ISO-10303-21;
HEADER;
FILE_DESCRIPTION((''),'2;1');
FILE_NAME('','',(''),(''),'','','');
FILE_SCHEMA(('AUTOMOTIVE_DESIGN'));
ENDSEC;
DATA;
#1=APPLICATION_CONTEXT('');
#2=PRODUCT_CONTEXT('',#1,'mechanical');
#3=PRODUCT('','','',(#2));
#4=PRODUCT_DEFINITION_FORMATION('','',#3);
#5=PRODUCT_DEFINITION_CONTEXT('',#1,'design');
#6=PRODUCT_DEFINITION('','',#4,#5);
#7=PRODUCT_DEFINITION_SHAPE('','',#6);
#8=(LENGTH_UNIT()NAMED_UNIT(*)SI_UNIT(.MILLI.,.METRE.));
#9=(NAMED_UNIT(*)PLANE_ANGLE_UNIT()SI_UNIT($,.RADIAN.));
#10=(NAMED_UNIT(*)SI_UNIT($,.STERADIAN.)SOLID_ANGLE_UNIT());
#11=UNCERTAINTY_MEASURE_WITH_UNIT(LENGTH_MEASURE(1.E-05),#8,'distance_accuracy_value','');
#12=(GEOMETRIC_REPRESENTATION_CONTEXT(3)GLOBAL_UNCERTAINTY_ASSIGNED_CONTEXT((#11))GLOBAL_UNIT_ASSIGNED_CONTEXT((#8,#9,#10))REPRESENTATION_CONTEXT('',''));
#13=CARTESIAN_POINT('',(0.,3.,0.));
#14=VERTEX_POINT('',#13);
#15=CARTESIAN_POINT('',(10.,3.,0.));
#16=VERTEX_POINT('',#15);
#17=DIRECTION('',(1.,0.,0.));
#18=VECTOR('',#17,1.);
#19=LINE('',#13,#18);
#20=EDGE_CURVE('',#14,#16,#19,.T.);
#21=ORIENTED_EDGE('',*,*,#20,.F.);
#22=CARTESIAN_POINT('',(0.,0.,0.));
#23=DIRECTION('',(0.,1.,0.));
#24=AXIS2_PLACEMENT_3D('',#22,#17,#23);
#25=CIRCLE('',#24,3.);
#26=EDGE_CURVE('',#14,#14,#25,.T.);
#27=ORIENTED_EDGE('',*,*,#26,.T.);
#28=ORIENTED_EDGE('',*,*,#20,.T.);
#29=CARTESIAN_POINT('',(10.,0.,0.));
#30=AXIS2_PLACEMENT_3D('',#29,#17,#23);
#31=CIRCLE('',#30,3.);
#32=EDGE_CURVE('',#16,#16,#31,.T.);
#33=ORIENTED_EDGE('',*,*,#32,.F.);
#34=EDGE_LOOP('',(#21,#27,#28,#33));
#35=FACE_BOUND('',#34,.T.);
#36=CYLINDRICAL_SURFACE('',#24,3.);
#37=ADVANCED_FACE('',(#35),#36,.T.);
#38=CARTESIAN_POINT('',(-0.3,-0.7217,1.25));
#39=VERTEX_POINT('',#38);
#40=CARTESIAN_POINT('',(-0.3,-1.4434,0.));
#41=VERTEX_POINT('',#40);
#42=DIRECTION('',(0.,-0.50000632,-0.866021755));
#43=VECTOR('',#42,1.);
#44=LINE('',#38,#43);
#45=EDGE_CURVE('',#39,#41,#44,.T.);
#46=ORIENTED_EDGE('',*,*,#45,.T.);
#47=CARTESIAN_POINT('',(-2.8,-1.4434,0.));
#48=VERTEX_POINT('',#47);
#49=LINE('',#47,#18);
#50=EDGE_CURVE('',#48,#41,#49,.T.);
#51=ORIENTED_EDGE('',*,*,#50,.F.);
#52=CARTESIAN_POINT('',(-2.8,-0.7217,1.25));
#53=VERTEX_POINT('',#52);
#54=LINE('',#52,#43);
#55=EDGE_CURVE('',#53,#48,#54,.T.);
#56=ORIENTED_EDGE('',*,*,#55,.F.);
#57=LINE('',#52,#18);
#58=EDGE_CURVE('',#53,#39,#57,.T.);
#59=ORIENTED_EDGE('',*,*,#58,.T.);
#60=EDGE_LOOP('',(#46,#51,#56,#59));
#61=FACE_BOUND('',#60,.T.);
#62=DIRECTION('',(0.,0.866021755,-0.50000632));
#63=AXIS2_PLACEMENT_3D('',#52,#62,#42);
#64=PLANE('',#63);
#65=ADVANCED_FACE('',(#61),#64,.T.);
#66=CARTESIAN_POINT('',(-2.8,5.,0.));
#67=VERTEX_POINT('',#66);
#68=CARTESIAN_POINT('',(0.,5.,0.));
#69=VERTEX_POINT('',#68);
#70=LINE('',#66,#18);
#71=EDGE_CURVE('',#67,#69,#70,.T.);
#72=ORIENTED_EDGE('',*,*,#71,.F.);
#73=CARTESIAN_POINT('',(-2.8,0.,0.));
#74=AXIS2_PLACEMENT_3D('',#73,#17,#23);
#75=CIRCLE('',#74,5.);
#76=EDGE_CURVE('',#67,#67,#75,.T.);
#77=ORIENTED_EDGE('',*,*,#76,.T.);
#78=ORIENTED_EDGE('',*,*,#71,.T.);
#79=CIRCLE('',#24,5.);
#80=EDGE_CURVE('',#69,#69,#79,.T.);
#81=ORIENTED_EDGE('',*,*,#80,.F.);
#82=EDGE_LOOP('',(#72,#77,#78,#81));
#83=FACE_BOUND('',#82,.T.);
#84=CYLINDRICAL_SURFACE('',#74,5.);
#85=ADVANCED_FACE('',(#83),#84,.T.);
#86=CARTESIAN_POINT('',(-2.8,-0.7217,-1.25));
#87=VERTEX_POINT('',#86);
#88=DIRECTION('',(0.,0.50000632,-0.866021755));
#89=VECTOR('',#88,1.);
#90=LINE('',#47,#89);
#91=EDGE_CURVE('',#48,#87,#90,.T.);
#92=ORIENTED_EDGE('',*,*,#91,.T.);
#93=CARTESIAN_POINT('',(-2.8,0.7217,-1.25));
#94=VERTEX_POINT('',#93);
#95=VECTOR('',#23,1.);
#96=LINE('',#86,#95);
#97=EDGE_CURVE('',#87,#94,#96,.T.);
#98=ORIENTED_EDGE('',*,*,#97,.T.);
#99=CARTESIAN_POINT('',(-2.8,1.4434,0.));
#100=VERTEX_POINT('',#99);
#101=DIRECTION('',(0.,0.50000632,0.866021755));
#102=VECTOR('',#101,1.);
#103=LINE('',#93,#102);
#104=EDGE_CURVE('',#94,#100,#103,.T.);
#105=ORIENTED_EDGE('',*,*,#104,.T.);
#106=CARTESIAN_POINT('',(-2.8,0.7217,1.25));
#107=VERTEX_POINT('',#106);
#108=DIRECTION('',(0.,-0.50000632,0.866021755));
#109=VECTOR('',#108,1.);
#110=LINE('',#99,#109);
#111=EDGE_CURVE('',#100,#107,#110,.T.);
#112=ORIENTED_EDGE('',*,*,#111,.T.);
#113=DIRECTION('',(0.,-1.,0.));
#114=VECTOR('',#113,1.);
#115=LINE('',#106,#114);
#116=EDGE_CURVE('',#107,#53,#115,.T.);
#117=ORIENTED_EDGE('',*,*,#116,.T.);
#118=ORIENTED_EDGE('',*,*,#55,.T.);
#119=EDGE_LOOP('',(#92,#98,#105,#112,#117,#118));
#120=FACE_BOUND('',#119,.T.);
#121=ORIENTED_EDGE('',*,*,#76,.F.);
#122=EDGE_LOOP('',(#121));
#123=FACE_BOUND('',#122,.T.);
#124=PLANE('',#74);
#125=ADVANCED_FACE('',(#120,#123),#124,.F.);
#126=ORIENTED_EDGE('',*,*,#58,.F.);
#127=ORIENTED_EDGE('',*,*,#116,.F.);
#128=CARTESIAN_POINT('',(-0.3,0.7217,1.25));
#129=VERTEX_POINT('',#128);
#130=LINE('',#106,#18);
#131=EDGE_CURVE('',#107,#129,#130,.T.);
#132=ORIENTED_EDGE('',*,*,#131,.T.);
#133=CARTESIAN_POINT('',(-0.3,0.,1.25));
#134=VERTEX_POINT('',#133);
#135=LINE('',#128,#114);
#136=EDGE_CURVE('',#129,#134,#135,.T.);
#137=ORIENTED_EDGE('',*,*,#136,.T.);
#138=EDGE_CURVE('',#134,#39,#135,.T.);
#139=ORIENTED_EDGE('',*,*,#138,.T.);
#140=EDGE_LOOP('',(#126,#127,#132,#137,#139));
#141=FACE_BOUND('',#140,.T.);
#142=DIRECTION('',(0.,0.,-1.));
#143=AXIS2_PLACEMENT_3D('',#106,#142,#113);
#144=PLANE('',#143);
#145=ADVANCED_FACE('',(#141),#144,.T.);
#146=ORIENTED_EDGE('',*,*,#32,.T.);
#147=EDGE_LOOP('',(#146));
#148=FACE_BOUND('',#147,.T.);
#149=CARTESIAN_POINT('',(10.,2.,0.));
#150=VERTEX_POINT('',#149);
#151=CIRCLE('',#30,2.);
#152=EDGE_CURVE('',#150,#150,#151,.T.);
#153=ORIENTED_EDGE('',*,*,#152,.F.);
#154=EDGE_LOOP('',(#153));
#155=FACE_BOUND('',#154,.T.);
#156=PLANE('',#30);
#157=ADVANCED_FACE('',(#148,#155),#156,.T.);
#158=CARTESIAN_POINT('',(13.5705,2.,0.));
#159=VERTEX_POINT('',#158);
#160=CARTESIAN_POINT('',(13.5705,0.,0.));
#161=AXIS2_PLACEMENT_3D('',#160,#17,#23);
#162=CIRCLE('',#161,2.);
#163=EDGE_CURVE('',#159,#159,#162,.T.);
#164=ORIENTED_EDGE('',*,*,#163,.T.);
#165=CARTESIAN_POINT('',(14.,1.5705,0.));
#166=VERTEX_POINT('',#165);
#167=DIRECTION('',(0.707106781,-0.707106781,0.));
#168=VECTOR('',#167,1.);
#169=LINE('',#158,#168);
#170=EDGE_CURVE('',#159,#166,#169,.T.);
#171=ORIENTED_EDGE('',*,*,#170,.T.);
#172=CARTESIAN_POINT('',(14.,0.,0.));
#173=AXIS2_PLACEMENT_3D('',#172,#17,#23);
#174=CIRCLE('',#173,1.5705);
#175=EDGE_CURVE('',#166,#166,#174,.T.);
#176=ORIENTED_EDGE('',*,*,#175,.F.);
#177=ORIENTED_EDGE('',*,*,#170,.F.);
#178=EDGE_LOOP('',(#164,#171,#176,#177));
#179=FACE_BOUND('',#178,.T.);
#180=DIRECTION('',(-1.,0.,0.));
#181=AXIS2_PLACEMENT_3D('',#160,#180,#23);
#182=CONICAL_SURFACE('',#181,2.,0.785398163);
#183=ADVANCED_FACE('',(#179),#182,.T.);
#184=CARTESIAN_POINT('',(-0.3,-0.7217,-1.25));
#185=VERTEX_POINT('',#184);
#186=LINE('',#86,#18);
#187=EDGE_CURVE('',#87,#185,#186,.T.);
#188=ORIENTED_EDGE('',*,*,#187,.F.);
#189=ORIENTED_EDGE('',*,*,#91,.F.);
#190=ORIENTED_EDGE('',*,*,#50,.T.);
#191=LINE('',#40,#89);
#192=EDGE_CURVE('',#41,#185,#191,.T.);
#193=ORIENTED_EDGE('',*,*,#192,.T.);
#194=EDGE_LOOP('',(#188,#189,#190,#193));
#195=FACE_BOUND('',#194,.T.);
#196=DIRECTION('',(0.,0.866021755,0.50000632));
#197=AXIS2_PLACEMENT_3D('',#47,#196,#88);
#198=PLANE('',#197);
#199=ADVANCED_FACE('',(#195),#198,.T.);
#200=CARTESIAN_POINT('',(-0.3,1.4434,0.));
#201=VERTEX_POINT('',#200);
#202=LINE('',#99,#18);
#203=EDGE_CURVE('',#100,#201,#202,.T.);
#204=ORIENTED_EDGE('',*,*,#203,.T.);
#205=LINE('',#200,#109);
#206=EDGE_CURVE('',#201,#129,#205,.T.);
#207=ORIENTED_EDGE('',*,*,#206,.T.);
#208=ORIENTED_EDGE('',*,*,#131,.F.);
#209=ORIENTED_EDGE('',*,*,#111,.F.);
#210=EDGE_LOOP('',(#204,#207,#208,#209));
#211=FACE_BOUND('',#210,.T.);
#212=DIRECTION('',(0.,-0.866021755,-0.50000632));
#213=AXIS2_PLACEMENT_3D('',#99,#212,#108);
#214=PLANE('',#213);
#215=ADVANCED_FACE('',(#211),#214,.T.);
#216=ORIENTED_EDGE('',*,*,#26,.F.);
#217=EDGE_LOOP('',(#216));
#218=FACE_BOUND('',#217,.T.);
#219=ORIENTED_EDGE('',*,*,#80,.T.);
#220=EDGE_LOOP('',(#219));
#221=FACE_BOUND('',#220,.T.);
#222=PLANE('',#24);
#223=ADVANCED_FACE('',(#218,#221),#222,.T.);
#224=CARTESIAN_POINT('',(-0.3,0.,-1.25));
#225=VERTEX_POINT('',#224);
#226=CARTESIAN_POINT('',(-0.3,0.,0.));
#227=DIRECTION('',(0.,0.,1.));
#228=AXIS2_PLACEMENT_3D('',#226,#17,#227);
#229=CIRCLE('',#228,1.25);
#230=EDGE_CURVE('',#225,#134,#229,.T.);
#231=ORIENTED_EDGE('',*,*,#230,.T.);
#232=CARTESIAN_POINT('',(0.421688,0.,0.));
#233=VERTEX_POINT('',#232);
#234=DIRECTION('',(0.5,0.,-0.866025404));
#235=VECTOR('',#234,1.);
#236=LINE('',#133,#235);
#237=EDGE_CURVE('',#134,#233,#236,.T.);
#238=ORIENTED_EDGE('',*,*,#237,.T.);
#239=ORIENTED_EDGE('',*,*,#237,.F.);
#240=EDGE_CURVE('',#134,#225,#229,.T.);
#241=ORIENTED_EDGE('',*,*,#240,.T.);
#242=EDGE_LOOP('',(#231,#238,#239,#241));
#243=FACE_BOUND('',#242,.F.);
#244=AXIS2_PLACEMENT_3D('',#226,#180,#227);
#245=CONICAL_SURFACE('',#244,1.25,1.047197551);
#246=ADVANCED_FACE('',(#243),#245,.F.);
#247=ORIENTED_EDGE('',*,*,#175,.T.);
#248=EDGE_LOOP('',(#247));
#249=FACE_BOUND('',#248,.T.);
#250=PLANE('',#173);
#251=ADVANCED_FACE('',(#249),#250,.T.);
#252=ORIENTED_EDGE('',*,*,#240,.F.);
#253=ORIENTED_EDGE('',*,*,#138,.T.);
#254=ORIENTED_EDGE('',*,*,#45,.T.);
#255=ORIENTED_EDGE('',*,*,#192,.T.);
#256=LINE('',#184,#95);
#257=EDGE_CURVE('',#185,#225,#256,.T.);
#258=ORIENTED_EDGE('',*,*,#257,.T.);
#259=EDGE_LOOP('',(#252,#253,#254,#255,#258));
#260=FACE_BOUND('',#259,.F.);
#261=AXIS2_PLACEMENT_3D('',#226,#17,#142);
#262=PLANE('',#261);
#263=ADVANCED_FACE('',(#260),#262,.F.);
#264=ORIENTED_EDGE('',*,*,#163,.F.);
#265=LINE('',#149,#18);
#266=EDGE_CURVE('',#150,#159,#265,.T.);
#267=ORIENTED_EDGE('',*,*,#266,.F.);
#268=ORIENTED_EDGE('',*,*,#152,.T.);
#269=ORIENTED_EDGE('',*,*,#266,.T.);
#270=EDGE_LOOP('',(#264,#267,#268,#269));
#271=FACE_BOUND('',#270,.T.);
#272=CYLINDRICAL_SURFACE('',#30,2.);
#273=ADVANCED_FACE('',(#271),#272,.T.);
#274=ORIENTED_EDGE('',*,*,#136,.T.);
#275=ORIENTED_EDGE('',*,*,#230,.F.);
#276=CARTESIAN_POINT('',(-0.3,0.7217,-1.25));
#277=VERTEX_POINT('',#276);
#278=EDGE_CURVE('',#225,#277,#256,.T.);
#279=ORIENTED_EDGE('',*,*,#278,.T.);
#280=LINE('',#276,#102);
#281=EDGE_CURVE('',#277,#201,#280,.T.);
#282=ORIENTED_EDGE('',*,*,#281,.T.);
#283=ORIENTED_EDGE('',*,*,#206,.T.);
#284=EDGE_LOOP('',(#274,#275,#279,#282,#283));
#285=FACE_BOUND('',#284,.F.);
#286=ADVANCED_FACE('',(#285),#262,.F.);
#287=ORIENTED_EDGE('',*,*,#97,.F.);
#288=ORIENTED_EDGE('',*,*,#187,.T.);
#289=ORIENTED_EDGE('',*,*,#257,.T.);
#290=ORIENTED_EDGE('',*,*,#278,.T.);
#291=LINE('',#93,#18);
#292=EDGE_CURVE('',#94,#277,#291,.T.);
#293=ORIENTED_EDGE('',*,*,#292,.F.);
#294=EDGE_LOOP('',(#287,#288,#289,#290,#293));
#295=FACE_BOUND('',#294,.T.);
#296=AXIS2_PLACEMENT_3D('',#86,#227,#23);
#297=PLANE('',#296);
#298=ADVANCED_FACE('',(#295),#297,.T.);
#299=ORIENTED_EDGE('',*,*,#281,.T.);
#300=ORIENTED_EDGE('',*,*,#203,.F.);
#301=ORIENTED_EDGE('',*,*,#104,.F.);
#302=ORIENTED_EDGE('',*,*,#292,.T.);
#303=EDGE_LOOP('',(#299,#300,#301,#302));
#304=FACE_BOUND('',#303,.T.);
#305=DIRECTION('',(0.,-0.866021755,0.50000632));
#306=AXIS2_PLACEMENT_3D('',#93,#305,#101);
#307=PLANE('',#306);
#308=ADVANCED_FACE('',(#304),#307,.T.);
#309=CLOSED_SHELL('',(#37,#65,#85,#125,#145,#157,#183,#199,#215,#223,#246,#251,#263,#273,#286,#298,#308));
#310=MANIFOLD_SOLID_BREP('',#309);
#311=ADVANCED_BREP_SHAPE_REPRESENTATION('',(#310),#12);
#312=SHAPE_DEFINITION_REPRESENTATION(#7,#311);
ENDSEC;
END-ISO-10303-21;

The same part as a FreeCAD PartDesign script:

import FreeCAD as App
import Part
import Sketcher

V = App.Vector
Q = App.Units.Quantity


def add_polygon(sketch, points):
    """Adds a closed chain of lines whose ends are joined by coincident constraints."""
    first, n = sketch.GeometryCount, len(points)
    for a, b in zip(points, points[1:] + points[:1]):
        sketch.addGeometry(Part.LineSegment(App.Vector(*a, 0), App.Vector(*b, 0)), False)
    for i in range(n):
        sketch.addConstraint(Sketcher.Constraint("Coincident", first + i, 2, first + (i + 1) % n, 1))

doc = App.newDocument("Part")
params = doc.addObject("Spreadsheet::Sheet", "Params")
for row, (alias, value) in enumerate([
    ("sketch1_width", "10 mm"),
    ("sketch1_height", "3 mm"),
    ("sketch1_height2", "2 mm"),
    ("sketch1_width2", "12.8 mm"),
    ("revolution_angle", "360 deg"),
    ("sketch2_diameter", "2.5 mm"),
    ("hole_diameter", "2.5 mm"),
    ("hole_depth", "2.5 mm"),
    ("pocket1_length", "2.5 mm"),
    ("sketch4_width", "4 mm"),
    ("sketch4_height", "2 mm"),
    ("revolution2_angle", "360 deg"),
], start=1):
    params.set(f"A{row}", alias)
    params.set(f"B{row}", "=" + value)
    params.setAlias(f"B{row}", alias)

body = doc.addObject("PartDesign::Body", "Body")

# Sketch on XY plane
sketch1 = body.newObject("Sketcher::SketchObject", "Sketch")
sketch1.AttachmentSupport = (doc.getObject("XY_Plane"), [""])
sketch1.MapMode = "FlatFace"
add_polygon(sketch1, [(-2.8, 0), (10, 0), (10, 3), (0, 3), (0, 5), (-2.8, 5)])  # lines 0-5
sketch1.addConstraint([
    Sketcher.Constraint("Horizontal", 0),
    Sketcher.Constraint("Vertical", 1),
    Sketcher.Constraint("Horizontal", 2),
    Sketcher.Constraint("Vertical", 3),
    Sketcher.Constraint("Horizontal", 4),
    Sketcher.Constraint("Vertical", 5),
    Sketcher.Constraint("PointOnObject", 0, 2, -1),
    Sketcher.Constraint("PointOnObject", 2, 2, -2),
    Sketcher.Constraint("DistanceX", 2, 2, 2, 1, Q("10 mm")),
    Sketcher.Constraint("DistanceY", 1, 1, 1, 2, Q("3 mm")),
    Sketcher.Constraint("DistanceY", 3, 1, 3, 2, Q("2 mm")),
    Sketcher.Constraint("DistanceX", 0, 1, 0, 2, Q("12.8 mm")),
])
sketch1.setExpression("Constraints[14]", "Params.sketch1_width")
sketch1.setExpression("Constraints[15]", "Params.sketch1_height")
sketch1.setExpression("Constraints[16]", "Params.sketch1_height2")
sketch1.setExpression("Constraints[17]", "Params.sketch1_width2")
revolution = body.newObject("PartDesign::Revolution", "Revolution")
revolution.Profile = sketch1
revolution.ReferenceAxis = (sketch1, ["H_Axis"])
revolution.setExpression("Angle", "Params.revolution_angle")

# Sketch on YZ plane
sketch2 = body.newObject("Sketcher::SketchObject", "Sketch001")
sketch2.AttachmentSupport = (doc.getObject("YZ_Plane"), [""])
sketch2.MapMode = "FlatFace"
sketch2.AttachmentOffset = App.Placement(V(0, 0, -2.8), App.Rotation())
sketch2.addGeometry(Part.Circle(V(0, 0, 0), V(0, 0, 1), 1.2), False)
sketch2.addConstraint([
    Sketcher.Constraint("Coincident", 0, 3, -1, 1),
    Sketcher.Constraint("Diameter", 0, Q("2.5 mm")),
])
sketch2.setExpression("Constraints[1]", "Params.sketch2_diameter")
doc.recompute()
hole = body.newObject("PartDesign::Hole", "Hole")
hole.Profile = sketch2
hole.ThreadType = "None"
hole.setExpression("Diameter", "Params.hole_diameter")
hole.DepthType = "Dimension"
hole.setExpression("Depth", "Params.hole_depth")
hole.DrillPoint = "Angled"
hole.DrillPointAngle = 120
hole.Reversed = True

# Sketch on YZ plane
sketch3 = body.newObject("Sketcher::SketchObject", "Sketch002")
sketch3.AttachmentSupport = (doc.getObject("YZ_Plane"), [""])
sketch3.MapMode = "FlatFace"
sketch3.AttachmentOffset = App.Placement(V(0, 0, -2.8), App.Rotation())
add_polygon(sketch3, [(0.7, 1.2), (-0.7, 1.2), (-1.4, 0), (-0.7, -1.2), (0.7, -1.2), (1.4, 0)])  # lines 0-5
sketch3.addConstraint([
    Sketcher.Constraint("Horizontal", 0),
    Sketcher.Constraint("Horizontal", 3),
    Sketcher.Constraint("Symmetric", 0, 2, 3, 2, -1, 1),
    Sketcher.Constraint("Symmetric", 1, 2, 4, 2, -1, 1),
    Sketcher.Constraint("PointOnObject", 1, 2, -1),
    Sketcher.Constraint("Parallel", 2, 5),
    Sketcher.Constraint("Vertical", 0, 2, 2, 2),
    Sketcher.Constraint("Angle", 1, Q("-120.0004 deg")),
    Sketcher.Constraint("DistanceY", 2, 2, 0, 2, Q("2.5 mm")),
    Sketcher.Constraint("DistanceX", 0, 2, 0, 1, Q("1.4434 mm")),
])
pocket1 = body.newObject("PartDesign::Pocket", "Pocket")
pocket1.Profile = sketch3
pocket1.setExpression("Length", "Params.pocket1_length")
pocket1.Reversed = True

# Sketch on XY plane
sketch4 = body.newObject("Sketcher::SketchObject", "Sketch003")
sketch4.AttachmentSupport = (doc.getObject("XY_Plane"), [""])
sketch4.MapMode = "FlatFace"
add_polygon(sketch4, [(10, 0), (14, 0), (14, 1.6), (13.6, 2), (10, 2)])  # lines 0-4
sketch4.addConstraint([
    Sketcher.Constraint("Horizontal", 0),
    Sketcher.Constraint("Vertical", 1),
    Sketcher.Constraint("Horizontal", 3),
    Sketcher.Constraint("Vertical", 4),
    Sketcher.Constraint("PointOnObject", 0, 2, -1),
    Sketcher.Constraint("DistanceX", 0, 1, 0, 2, Q("4 mm")),
    Sketcher.Constraint("DistanceY", 4, 2, 4, 1, Q("2 mm")),
    Sketcher.Constraint("Angle", 2, Q("135 deg")),
    Sketcher.Constraint("DistanceX", -1, 1, 0, 2, Q("14 mm")),
    Sketcher.Constraint("DistanceX", 3, 2, 3, 1, Q("3.5705 mm")),
])
sketch4.setExpression("Constraints[10]", "Params.sketch4_width")
sketch4.setExpression("Constraints[11]", "Params.sketch4_height")
revolution2 = body.newObject("PartDesign::Revolution", "Revolution001")
revolution2.Profile = sketch4
revolution2.ReferenceAxis = (sketch4, ["H_Axis"])
revolution2.setExpression("Angle", "Params.revolution2_angle")

doc.recompute()
